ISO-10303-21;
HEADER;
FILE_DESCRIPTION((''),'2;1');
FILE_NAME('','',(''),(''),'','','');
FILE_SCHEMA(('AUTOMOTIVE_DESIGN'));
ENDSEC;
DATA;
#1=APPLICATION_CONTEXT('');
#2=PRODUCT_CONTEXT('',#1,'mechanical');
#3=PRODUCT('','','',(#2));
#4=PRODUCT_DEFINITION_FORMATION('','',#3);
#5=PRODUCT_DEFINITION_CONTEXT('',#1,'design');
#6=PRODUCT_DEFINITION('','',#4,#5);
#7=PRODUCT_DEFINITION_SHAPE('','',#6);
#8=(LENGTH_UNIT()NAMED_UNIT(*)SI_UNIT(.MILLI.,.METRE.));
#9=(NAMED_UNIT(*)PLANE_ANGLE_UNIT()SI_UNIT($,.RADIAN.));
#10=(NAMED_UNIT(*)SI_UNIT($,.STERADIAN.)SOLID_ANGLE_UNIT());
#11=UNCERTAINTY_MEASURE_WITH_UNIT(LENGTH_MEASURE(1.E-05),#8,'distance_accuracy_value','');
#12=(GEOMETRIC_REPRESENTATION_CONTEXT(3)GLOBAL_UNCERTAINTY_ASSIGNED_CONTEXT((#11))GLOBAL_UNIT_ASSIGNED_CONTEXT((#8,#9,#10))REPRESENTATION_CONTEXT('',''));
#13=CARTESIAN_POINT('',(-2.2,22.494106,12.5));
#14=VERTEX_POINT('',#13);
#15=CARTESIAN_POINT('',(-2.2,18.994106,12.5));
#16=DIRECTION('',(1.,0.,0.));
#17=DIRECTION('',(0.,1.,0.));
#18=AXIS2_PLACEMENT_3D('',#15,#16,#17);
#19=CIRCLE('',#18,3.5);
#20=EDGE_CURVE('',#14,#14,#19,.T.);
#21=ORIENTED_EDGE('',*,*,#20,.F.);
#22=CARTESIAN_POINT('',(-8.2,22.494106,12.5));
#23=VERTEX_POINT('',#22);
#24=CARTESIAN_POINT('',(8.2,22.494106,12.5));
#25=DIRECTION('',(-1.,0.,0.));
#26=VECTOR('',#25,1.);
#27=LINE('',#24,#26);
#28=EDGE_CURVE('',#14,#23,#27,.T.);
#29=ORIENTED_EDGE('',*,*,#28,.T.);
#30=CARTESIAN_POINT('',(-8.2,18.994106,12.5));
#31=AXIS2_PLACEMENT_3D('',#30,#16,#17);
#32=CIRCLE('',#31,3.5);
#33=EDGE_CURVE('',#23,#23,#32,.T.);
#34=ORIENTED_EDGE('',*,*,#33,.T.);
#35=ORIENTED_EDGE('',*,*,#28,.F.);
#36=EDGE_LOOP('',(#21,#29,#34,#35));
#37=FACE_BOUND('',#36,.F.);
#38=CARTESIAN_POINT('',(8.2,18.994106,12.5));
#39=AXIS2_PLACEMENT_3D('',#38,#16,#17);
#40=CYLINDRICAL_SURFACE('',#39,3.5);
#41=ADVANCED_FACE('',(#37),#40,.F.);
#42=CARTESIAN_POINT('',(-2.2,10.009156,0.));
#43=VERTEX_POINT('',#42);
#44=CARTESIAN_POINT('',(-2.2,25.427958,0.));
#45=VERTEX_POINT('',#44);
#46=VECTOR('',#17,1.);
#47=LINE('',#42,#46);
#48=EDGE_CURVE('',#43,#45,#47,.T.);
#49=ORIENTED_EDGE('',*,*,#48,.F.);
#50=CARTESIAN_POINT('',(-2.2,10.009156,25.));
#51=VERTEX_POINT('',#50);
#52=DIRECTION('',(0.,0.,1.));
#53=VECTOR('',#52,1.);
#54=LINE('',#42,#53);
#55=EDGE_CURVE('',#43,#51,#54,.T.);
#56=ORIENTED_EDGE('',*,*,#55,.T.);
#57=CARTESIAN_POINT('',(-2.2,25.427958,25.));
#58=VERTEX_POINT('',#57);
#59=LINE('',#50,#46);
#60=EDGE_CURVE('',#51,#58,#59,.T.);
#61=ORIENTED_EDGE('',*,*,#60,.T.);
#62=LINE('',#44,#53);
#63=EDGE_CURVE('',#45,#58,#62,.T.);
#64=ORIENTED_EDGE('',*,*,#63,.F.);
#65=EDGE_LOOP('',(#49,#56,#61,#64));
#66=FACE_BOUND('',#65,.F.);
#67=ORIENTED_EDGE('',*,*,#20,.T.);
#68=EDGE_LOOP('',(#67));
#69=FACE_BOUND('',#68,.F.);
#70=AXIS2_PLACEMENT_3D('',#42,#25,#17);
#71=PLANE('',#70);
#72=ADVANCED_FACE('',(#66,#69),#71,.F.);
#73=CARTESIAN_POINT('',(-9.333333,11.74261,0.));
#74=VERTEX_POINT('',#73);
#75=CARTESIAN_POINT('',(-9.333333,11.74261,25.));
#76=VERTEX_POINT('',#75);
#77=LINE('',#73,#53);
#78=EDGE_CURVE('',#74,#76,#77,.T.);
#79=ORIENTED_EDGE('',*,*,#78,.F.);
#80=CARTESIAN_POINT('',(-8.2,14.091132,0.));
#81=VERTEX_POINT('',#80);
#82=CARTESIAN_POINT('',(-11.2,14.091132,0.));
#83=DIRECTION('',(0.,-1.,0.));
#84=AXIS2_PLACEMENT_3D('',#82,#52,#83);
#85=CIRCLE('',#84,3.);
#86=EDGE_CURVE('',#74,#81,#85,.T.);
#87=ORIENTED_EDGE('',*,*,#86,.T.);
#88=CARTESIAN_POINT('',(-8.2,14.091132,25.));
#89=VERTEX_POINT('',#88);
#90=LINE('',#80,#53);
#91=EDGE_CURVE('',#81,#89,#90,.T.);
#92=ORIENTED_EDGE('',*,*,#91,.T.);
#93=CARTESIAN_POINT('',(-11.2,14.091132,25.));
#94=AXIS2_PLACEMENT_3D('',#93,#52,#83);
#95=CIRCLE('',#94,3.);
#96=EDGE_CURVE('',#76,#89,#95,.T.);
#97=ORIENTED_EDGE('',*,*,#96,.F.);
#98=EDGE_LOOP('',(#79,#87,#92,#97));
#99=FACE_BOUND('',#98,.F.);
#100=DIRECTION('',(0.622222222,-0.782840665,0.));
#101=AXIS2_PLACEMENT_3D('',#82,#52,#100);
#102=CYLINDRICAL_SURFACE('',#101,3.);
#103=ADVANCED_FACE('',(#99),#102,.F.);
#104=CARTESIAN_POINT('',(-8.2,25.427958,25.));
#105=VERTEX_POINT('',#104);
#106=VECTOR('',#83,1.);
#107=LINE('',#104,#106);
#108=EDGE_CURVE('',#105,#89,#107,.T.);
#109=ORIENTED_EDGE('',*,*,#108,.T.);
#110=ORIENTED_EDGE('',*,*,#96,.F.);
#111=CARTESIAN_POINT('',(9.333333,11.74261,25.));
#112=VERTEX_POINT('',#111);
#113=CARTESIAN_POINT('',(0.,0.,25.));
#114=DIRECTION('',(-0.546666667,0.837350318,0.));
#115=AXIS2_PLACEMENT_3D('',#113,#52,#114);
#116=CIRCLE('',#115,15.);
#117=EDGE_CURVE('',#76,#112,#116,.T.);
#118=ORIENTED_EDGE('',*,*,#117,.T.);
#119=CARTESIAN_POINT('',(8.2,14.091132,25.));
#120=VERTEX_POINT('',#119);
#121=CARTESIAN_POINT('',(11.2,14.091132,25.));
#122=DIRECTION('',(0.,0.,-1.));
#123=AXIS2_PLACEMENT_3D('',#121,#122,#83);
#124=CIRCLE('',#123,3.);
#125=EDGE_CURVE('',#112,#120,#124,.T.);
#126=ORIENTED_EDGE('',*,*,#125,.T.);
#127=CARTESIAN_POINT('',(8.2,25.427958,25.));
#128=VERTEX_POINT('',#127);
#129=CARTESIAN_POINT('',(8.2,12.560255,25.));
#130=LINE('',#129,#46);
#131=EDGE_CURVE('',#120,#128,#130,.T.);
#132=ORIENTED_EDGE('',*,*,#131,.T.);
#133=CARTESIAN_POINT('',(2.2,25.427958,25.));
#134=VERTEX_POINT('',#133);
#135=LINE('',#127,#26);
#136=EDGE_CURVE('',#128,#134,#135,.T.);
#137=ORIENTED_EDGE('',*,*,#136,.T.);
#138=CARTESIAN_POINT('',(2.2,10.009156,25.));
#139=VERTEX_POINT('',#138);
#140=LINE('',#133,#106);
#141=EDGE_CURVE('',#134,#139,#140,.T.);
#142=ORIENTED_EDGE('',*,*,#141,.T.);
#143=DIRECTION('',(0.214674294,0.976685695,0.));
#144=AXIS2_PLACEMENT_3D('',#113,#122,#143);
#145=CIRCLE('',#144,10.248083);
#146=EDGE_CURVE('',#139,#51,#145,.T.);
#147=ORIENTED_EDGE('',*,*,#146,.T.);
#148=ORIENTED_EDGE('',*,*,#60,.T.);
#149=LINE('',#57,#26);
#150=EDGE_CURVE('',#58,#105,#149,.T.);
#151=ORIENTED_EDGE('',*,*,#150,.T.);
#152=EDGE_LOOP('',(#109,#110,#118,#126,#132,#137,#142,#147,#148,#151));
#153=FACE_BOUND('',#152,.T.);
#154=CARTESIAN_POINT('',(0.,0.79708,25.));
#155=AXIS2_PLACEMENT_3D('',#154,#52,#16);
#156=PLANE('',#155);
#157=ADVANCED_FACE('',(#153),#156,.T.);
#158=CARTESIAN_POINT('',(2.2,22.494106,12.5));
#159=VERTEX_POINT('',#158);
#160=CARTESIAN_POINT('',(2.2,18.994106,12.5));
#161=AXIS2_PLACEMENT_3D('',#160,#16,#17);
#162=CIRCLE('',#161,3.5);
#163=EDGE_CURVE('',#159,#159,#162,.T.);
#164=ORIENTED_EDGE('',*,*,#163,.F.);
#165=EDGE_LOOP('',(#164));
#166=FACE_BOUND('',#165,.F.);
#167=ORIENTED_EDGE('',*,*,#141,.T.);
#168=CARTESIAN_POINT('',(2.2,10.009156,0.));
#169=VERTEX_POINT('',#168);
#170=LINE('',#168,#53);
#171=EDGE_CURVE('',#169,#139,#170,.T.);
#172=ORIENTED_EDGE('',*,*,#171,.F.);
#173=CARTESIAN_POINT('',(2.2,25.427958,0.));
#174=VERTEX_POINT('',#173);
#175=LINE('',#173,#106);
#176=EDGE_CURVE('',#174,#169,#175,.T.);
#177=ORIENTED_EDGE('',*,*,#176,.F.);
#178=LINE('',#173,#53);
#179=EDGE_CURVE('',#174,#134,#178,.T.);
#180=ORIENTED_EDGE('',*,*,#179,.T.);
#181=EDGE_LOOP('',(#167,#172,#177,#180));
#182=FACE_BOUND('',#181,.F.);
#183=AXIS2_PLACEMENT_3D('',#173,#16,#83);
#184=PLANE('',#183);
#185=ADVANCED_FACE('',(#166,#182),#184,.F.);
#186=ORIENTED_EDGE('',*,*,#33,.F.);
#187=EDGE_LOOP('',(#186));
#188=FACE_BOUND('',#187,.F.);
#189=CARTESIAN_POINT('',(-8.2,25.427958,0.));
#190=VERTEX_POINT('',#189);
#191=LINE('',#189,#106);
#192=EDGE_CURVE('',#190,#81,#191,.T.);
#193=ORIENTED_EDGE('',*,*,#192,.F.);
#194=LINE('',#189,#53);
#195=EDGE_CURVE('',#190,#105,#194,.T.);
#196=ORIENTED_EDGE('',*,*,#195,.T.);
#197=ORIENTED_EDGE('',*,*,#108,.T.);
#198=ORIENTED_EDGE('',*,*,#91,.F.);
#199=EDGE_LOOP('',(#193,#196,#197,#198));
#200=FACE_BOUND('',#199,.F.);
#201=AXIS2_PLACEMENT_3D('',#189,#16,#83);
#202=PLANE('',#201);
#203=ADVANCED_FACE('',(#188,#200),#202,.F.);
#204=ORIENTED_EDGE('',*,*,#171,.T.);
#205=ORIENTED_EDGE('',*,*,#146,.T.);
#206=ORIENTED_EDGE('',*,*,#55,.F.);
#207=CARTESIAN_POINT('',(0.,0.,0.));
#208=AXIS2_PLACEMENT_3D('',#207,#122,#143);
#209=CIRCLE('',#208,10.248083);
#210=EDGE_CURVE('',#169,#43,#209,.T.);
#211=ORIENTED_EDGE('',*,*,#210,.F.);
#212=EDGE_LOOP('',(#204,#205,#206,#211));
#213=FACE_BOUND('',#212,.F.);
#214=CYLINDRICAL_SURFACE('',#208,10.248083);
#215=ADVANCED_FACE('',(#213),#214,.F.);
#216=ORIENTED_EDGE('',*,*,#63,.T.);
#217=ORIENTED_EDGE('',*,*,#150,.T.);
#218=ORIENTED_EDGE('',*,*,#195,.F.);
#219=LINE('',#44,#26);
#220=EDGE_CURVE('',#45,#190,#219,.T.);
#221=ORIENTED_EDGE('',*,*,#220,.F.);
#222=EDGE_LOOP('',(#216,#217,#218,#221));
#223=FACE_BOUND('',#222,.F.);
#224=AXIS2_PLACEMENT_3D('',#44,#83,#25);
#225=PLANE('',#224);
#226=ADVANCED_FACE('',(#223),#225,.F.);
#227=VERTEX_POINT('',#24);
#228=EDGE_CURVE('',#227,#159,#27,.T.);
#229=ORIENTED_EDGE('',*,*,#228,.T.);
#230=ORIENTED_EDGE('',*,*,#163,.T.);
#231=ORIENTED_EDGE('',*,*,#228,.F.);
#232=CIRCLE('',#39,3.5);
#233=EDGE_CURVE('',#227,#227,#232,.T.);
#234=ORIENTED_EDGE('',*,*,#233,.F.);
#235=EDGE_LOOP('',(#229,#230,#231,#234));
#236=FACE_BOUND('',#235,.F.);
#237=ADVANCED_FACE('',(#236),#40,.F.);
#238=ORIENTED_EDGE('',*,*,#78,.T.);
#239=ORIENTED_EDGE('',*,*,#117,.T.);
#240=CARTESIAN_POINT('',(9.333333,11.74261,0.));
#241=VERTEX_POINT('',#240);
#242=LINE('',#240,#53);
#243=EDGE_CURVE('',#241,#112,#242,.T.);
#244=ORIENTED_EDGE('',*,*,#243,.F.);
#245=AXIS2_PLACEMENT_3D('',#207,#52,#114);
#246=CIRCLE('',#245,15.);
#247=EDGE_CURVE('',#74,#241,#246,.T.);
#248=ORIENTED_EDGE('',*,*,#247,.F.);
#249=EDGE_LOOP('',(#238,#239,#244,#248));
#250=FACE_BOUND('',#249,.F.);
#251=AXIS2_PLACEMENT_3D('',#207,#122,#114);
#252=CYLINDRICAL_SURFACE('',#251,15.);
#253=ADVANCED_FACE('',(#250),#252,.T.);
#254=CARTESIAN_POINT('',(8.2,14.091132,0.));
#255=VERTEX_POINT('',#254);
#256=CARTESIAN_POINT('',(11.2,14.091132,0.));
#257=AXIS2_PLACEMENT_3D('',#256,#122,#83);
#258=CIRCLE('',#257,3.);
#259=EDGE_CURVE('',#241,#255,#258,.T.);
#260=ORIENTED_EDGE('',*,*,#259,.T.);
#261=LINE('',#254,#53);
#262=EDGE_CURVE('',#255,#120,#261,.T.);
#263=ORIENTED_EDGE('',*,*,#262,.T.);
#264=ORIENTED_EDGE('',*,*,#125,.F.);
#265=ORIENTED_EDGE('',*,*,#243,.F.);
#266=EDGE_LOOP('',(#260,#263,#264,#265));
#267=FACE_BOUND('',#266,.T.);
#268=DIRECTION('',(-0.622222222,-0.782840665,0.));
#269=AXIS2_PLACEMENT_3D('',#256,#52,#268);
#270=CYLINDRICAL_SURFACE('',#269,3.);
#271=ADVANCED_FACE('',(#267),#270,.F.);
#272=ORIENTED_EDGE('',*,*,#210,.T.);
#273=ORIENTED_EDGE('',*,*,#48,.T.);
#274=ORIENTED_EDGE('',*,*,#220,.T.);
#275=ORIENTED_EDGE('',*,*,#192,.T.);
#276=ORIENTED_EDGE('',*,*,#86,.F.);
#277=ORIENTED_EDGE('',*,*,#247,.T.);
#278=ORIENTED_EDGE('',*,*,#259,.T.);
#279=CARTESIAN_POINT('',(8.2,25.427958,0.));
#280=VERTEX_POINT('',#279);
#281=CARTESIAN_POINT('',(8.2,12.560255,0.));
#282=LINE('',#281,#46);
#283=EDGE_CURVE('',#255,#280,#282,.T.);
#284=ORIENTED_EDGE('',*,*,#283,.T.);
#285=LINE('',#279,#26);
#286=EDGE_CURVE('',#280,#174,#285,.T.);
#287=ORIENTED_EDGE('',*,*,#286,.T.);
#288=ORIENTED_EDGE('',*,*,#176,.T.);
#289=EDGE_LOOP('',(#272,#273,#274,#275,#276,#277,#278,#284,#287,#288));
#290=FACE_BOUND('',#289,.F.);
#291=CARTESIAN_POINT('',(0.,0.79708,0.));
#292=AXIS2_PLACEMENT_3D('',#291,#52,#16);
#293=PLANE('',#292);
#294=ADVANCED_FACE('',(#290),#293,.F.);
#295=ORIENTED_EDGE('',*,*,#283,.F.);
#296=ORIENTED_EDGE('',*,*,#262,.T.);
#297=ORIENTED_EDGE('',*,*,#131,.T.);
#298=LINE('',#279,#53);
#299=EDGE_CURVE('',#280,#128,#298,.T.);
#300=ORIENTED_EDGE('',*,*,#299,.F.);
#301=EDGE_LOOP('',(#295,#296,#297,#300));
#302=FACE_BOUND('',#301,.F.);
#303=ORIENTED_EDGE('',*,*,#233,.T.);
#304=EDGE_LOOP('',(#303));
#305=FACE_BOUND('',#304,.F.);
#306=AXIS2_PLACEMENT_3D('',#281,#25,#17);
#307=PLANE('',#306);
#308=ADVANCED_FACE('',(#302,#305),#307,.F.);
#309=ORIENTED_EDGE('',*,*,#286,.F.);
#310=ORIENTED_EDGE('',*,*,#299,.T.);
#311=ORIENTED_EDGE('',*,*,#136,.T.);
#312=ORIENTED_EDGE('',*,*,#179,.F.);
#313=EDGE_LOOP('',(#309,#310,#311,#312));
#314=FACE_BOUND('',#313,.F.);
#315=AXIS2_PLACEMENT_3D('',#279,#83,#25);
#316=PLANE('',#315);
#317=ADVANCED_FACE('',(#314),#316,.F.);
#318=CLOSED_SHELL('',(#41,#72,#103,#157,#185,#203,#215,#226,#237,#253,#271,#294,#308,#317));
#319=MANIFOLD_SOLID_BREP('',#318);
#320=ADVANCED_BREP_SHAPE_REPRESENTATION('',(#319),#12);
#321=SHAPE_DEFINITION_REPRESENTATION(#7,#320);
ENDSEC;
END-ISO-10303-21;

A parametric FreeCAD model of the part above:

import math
import FreeCAD as App
import Part
import Sketcher


def edges_at(feature, points):
    """Names of the edges that pass closest to the given points."""
    edges = feature.Shape.Edges
    near = lambda p: min(range(len(edges)), key=lambda i: edges[i].distToShape(Part.Vertex(*p))[0])
    return sorted({f"Edge{near(p) + 1}" for p in points})

doc = App.newDocument("Part")
body = doc.addObject("PartDesign::Body", "Body")

sketch1 = body.newObject("Sketcher::SketchObject", "Sketch")
sketch1.AttachmentSupport = (doc.getObject("XY_Plane"), [""])
sketch1.MapMode = "FlatFace"
sketch1.addGeometry([
    Part.ArcOfCircle(Part.Circle(App.Vector(0, 0, 0), App.Vector(0, 0, 1), 15), math.radians(123), math.radians(417)),
    Part.LineSegment(App.Vector(8.2, 12.6, 0), App.Vector(8.2, 25.4, 0)),
    Part.LineSegment(App.Vector(8.2, 25.4, 0), App.Vector(2.2, 25.4, 0)),
    Part.LineSegment(App.Vector(2.2, 25.4, 0), App.Vector(2.2, 10, 0)),
    Part.ArcOfCircle(Part.Circle(App.Vector(0, 0, 0), App.Vector(0, 0, 1), 10.2), math.radians(102), math.radians(438)),
    Part.LineSegment(App.Vector(-2.2, 10, 0), App.Vector(-2.2, 25.4, 0)),
    Part.LineSegment(App.Vector(-2.2, 25.4, 0), App.Vector(-8.2, 25.4, 0)),
    Part.LineSegment(App.Vector(-8.2, 25.4, 0), App.Vector(-8.2, 12.6, 0)),
], False)
sketch1.addConstraint([
    Sketcher.Constraint("Coincident", 0, 2, 1, 1),
    Sketcher.Constraint("Coincident", 1, 2, 2, 1),
    Sketcher.Constraint("Coincident", 2, 2, 3, 1),
    Sketcher.Constraint("Coincident", 3, 2, 4, 2),
    Sketcher.Constraint("Coincident", 4, 1, 5, 1),
    Sketcher.Constraint("Coincident", 5, 2, 6, 1),
    Sketcher.Constraint("Coincident", 6, 2, 7, 1),
    Sketcher.Constraint("Coincident", 7, 2, 0, 1),
    Sketcher.Constraint("Vertical", 1),
    Sketcher.Constraint("Horizontal", 2),
    Sketcher.Constraint("Vertical", 3),
    Sketcher.Constraint("Vertical", 5),
    Sketcher.Constraint("Horizontal", 6),
    Sketcher.Constraint("Vertical", 7),
    Sketcher.Constraint("Coincident", 0, 3, -1, 1),
    Sketcher.Constraint("Coincident", 4, 3, -1, 1),
    Sketcher.Constraint("Symmetric", 2, 2, 5, 2, -2),
    Sketcher.Constraint("Horizontal", 0, 2, 7, 2),
    Sketcher.Constraint("Radius", 0, 15.0),
    Sketcher.Constraint("DistanceX", 2, 2, 2, 1, 6.0),
    Sketcher.Constraint("DistanceX", -1, 1, 0, 2, 8.2),
    Sketcher.Constraint("DistanceY", 3, 2, 3, 1, 15.418802),
    Sketcher.Constraint("Radius", 4, 10.248083),
])
pad1 = body.newObject("PartDesign::Pad", "Pad")
pad1.Profile = sketch1
pad1.Length = 25

sketch2 = body.newObject("Sketcher::SketchObject", "Sketch001")
sketch2.AttachmentSupport = (doc.getObject("YZ_Plane"), [""])
sketch2.MapMode = "FlatFace"
sketch2.AttachmentOffset = App.Placement(App.Vector(0, 0, 8.2), App.Rotation())
sketch2.addGeometry(Part.Circle(App.Vector(19, 12.5, 0), App.Vector(0, 0, 1), 3.5), False)
sketch2.addConstraint([
    Sketcher.Constraint("Diameter", 0, 7.0),
    Sketcher.Constraint("DistanceY", -1, 1, 0, 3, 12.5),
    Sketcher.Constraint("DistanceX", -1, 1, 0, 3, 18.994106),
])
pocket1 = body.newObject("PartDesign::Pocket", "Pocket")
pocket1.Profile = sketch2
pocket1.Length = 25
doc.recompute()

fillet = body.newObject("PartDesign::Fillet", "Fillet")
fillet.Base = (pocket1, edges_at(pocket1, [(8.2, 12.56, 12.5), (-8.2, 12.56, 12.5)]))
fillet.Radius = 3

doc.recompute()
